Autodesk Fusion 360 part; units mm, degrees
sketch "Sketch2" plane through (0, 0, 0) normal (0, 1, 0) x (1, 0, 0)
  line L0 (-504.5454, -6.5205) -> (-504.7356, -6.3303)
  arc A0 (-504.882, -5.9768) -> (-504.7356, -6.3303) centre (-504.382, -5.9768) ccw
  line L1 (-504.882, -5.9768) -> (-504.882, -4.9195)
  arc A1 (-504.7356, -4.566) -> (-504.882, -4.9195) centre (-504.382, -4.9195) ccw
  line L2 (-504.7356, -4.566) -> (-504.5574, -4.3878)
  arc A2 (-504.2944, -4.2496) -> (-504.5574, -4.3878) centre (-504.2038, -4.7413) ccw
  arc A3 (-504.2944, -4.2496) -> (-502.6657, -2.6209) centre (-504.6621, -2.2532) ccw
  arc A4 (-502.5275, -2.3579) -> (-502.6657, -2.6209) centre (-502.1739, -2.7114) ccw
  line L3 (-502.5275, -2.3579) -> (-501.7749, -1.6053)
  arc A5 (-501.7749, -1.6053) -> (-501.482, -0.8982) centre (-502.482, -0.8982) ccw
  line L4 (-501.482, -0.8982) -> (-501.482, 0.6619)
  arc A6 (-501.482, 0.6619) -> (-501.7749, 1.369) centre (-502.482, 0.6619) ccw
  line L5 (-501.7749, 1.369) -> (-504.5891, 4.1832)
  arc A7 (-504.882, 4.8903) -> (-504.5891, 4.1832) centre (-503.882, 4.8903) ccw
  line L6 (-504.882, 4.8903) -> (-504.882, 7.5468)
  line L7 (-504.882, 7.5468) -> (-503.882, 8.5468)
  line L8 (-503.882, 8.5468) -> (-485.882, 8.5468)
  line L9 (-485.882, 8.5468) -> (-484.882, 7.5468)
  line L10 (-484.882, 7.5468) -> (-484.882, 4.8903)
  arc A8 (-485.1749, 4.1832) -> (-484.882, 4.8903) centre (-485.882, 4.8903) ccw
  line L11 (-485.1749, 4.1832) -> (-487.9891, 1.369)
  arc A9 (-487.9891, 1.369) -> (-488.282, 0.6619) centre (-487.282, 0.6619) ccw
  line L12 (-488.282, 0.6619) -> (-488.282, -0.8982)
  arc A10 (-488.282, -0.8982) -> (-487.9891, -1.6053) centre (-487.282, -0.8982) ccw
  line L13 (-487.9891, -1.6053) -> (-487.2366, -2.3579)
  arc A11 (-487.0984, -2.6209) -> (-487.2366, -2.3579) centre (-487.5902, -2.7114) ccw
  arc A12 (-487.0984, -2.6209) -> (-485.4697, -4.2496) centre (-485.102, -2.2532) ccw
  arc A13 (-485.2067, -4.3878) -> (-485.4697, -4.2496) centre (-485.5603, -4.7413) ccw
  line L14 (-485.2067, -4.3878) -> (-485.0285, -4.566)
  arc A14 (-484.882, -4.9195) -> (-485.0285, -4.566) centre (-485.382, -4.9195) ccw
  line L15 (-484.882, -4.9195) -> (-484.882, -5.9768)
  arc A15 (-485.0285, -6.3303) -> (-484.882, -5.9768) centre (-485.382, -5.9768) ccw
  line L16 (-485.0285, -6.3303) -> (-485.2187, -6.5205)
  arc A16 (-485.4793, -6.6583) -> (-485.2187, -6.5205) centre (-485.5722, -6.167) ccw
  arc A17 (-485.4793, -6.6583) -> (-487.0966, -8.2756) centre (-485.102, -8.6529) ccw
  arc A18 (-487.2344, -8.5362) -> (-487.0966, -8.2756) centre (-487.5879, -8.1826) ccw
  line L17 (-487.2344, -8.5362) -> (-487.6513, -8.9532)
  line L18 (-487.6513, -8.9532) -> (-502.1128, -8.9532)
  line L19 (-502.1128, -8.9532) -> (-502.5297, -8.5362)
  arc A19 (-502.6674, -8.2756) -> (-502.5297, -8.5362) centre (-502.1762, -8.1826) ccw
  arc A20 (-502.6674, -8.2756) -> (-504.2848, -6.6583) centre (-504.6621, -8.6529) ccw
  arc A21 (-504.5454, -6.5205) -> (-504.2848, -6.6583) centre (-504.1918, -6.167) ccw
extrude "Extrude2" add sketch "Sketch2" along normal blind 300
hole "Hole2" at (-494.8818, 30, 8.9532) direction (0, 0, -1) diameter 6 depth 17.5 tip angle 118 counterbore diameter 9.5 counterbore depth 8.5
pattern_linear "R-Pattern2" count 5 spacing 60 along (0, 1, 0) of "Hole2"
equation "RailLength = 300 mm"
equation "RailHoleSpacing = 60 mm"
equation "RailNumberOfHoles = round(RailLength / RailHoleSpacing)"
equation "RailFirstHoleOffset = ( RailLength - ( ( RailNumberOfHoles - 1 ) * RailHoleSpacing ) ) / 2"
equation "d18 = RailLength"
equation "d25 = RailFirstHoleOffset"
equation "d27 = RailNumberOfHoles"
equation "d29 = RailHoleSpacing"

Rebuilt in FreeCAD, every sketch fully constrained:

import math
import FreeCAD as App
import Part
import Sketcher
from FreeCAD import Vector
Q = App.Units.Quantity

doc = App.newDocument("Part")
params = doc.addObject("Spreadsheet::Sheet", "Params")
for row, (alias, value) in enumerate([
    ("sketch1_radius", "1 mm"),
    ("sketch1_radius2", "1 mm"),
    ("sketch1_radius3", "1 mm"),
    ("sketch1_radius4", "1 mm"),
    ("sketch1_radius5", "1 mm"),
    ("pad1_length", "300 mm"),
    ("sketch2_diameter", "6 mm"),
    ("hole_diameter", "6 mm"),
    ("hole_depth", "17.5 mm"),
    ("hole_cbore_diameter", "9.5 mm"),
    ("hole_cbore_depth", "8.5 mm"),
    ("linearpattern_pitch", "60 mm"),
], start=1):
    params.set(f"A{row}", alias)
    params.set(f"B{row}", "=" + value)
    params.setAlias(f"B{row}", alias)

body = doc.addObject("PartDesign::Body", "Body")

sketch1 = body.newObject("Sketcher::SketchObject", "Sketch")
sketch1.AttachmentSupport = (doc.getObject("XZ_Plane"), [""])
sketch1.MapMode = "FlatFace"
sketch1.addGeometry([
    Part.LineSegment(Vector(-504.7356, 6.3303, 0), Vector(-504.5454, 6.5205, 0)),
    Part.ArcOfCircle(Part.Circle(Vector(-504.1918, 6.167, 0), Vector(0, 0, 1), 0.499995), math.radians(100.718905), math.radians(135.008103)),
    Part.ArcOfCircle(Part.Circle(Vector(-504.6621, 8.6529, 0), Vector(0, 0, 1), 2.03007), math.radians(-79.288451), math.radians(-10.711024)),
    Part.ArcOfCircle(Part.Circle(Vector(-502.1762, 8.1826, 0), Vector(0, 0, 1), 0.499926), math.radians(134.991897), math.radians(169.278964)),
    Part.LineSegment(Vector(-502.5297, 8.5362, 0), Vector(-502.1128, 8.9532, 0)),
    Part.LineSegment(Vector(-502.1128, 8.9532, 0), Vector(-487.6513, 8.9532, 0)),
    Part.LineSegment(Vector(-487.6513, 8.9532, 0), Vector(-487.2344, 8.5362, 0)),
    Part.ArcOfCircle(Part.Circle(Vector(-487.5879, 8.1826, 0), Vector(0, 0, 1), 0.499995), math.radians(10.718905), math.radians(45.008103)),
    Part.ArcOfCircle(Part.Circle(Vector(-485.102, 8.6529, 0), Vector(0, 0, 1), 2.029972), math.radians(-169.288451), math.radians(-100.711549)),
    Part.ArcOfCircle(Part.Circle(Vector(-485.5722, 6.167, 0), Vector(0, 0, 1), 0.500006), math.radians(45), math.radians(79.292354)),
    Part.LineSegment(Vector(-485.2187, 6.5205, 0), Vector(-485.0285, 6.3303, 0)),
    Part.ArcOfCircle(Part.Circle(Vector(-485.382, 5.9768, 0), Vector(0, 0, 1), 0.499924), math.radians(0), math.radians(45)),
    Part.LineSegment(Vector(-484.882, 5.9768, 0), Vector(-484.882, 4.9195, 0)),
    Part.ArcOfCircle(Part.Circle(Vector(-485.382, 4.9195, 0), Vector(0, 0, 1), 0.5), math.radians(-45), math.radians(0)),
    Part.LineSegment(Vector(-485.0285, 4.566, 0), Vector(-485.2067, 4.3878, 0)),
    Part.ArcOfCircle(Part.Circle(Vector(-485.5603, 4.7413, 0), Vector(0, 0, 1), 0.499995), math.radians(-79.559855), math.radians(-44.991897)),
    Part.ArcOfCircle(Part.Circle(Vector(-485.102, 2.2532, 0), Vector(0, 0, 1), 2.029979), math.radians(100.435868), math.radians(169.564132)),
    Part.ArcOfCircle(Part.Circle(Vector(-487.5902, 2.7114, 0), Vector(0, 0, 1), 0.500057), math.radians(-44.991897), math.radians(-10.4268)),
    Part.LineSegment(Vector(-487.2366, 2.3579, 0), Vector(-487.9891, 1.6053, 0)),
    Part.ArcOfCircle(Part.Circle(Vector(-487.282, 0.8982, 0), Vector(0, 0, 1), 1), math.radians(135), math.radians(180)),
    Part.LineSegment(Vector(-488.282, 0.8982, 0), Vector(-488.282, -0.6619, 0)),
    Part.ArcOfCircle(Part.Circle(Vector(-487.282, -0.6619, 0), Vector(0, 0, 1), 0.99999), math.radians(180), math.radians(225)),
    Part.LineSegment(Vector(-487.9891, -1.369, 0), Vector(-485.1749, -4.1832, 0)),
    Part.ArcOfCircle(Part.Circle(Vector(-485.882, -4.8903, 0), Vector(0, 0, 1), 0.99999), math.radians(0), math.radians(45)),
    Part.LineSegment(Vector(-484.882, -4.8903, 0), Vector(-484.882, -7.5468, 0)),
    Part.LineSegment(Vector(-484.882, -7.5468, 0), Vector(-485.882, -8.5468, 0)),
    Part.LineSegment(Vector(-485.882, -8.5468, 0), Vector(-503.882, -8.5468, 0)),
    Part.LineSegment(Vector(-503.882, -8.5468, 0), Vector(-504.882, -7.5468, 0)),
    Part.LineSegment(Vector(-504.882, -7.5468, 0), Vector(-504.882, -4.8903, 0)),
    Part.ArcOfCircle(Part.Circle(Vector(-503.882, -4.8903, 0), Vector(0, 0, 1), 1), math.radians(135), math.radians(180)),
    Part.LineSegment(Vector(-504.5891, -4.1832, 0), Vector(-501.7749, -1.369, 0)),
    Part.ArcOfCircle(Part.Circle(Vector(-502.482, -0.6619, 0), Vector(0, 0, 1), 1), math.radians(-45), math.radians(0)),
    Part.LineSegment(Vector(-501.482, -0.6619, 0), Vector(-501.482, 0.8982, 0)),
    Part.ArcOfCircle(Part.Circle(Vector(-502.482, 0.8982, 0), Vector(0, 0, 1), 0.99999), math.radians(0), math.radians(45)),
    Part.LineSegment(Vector(-501.7749, 1.6053, 0), Vector(-502.5275, 2.3579, 0)),
    Part.ArcOfCircle(Part.Circle(Vector(-502.1739, 2.7114, 0), Vector(0, 0, 1), 0.499995), math.radians(-169.5732), math.radians(-135.008103)),
    Part.ArcOfCircle(Part.Circle(Vector(-504.6621, 2.2532, 0), Vector(0, 0, 1), 2.029979), math.radians(10.435868), math.radians(79.564132)),
    Part.ArcOfCircle(Part.Circle(Vector(-504.2038, 4.7413, 0), Vector(0, 0, 1), 0.499977), math.radians(-135.008103), math.radians(-100.440145)),
    Part.LineSegment(Vector(-504.5574, 4.3878, 0), Vector(-504.7356, 4.566, 0)),
    Part.ArcOfCircle(Part.Circle(Vector(-504.382, 4.9195, 0), Vector(0, 0, 1), 0.499995), math.radians(180), math.radians(224.991897)),
    Part.LineSegment(Vector(-504.882, 4.9195, 0), Vector(-504.882, 5.9768, 0)),
    Part.ArcOfCircle(Part.Circle(Vector(-504.382, 5.9768, 0), Vector(0, 0, 1), 0.5), math.radians(135.008103), math.radians(180)),
], False)
sketch1.addConstraint([
    Sketcher.Constraint("Coincident", 0, 2, 1, 2),
    Sketcher.Constraint("Coincident", 1, 1, 2, 1),
    Sketcher.Constraint("Coincident", 2, 2, 3, 2),
    Sketcher.Constraint("Coincident", 3, 1, 4, 1),
    Sketcher.Constraint("Coincident", 4, 2, 5, 1),
    Sketcher.Constraint("Coincident", 5, 2, 6, 1),
    Sketcher.Constraint("Coincident", 6, 2, 7, 2),
    Sketcher.Constraint("Coincident", 7, 1, 8, 1),
    Sketcher.Constraint("Coincident", 8, 2, 9, 2),
    Sketcher.Constraint("Coincident", 9, 1, 10, 1),
    Sketcher.Constraint("Coincident", 10, 2, 11, 2),
    Sketcher.Constraint("Coincident", 11, 1, 12, 1),
    Sketcher.Constraint("Coincident", 12, 2, 13, 2),
    Sketcher.Constraint("Coincident", 13, 1, 14, 1),
    Sketcher.Constraint("Coincident", 14, 2, 15, 2),
    Sketcher.Constraint("Coincident", 15, 1, 16, 1),
    Sketcher.Constraint("Coincident", 16, 2, 17, 2),
    Sketcher.Constraint("Coincident", 17, 1, 18, 1),
    Sketcher.Constraint("Coincident", 18, 2, 19, 1),
    Sketcher.Constraint("Coincident", 19, 2, 20, 1),
    Sketcher.Constraint("Coincident", 20, 2, 21, 1),
    Sketcher.Constraint("Coincident", 21, 2, 22, 1),
    Sketcher.Constraint("Coincident", 22, 2, 23, 2),
    Sketcher.Constraint("Coincident", 23, 1, 24, 1),
    Sketcher.Constraint("Coincident", 24, 2, 25, 1),
    Sketcher.Constraint("Coincident", 25, 2, 26, 1),
    Sketcher.Constraint("Coincident", 26, 2, 27, 1),
    Sketcher.Constraint("Coincident", 27, 2, 28, 1),
    Sketcher.Constraint("Coincident", 28, 2, 29, 2),
    Sketcher.Constraint("Coincident", 29, 1, 30, 1),
    Sketcher.Constraint("Coincident", 30, 2, 31, 1),
    Sketcher.Constraint("Coincident", 31, 2, 32, 1),
    Sketcher.Constraint("Coincident", 32, 2, 33, 1),
    Sketcher.Constraint("Coincident", 33, 2, 34, 1),
    Sketcher.Constraint("Coincident", 34, 2, 35, 2),
    Sketcher.Constraint("Coincident", 35, 1, 36, 1),
    Sketcher.Constraint("Coincident", 36, 2, 37, 2),
    Sketcher.Constraint("Coincident", 37, 1, 38, 1),
    Sketcher.Constraint("Coincident", 38, 2, 39, 2),
    Sketcher.Constraint("Coincident", 39, 1, 40, 1),
    Sketcher.Constraint("Coincident", 40, 2, 41, 2),
    Sketcher.Constraint("Coincident", 41, 1, 0, 1),
    Sketcher.Constraint("Horizontal", 5),
    Sketcher.Constraint("Vertical", 12),
    Sketcher.Constraint("Vertical", 20),
    Sketcher.Constraint("Vertical", 24),
    Sketcher.Constraint("Horizontal", 26),
    Sketcher.Constraint("Vertical", 28),
    Sketcher.Constraint("Vertical", 32),
    Sketcher.Constraint("Vertical", 40),
    Sketcher.Constraint("Radius", 19, Q("1 mm")),
    Sketcher.Constraint("Radius", 21, Q("1 mm")),
    Sketcher.Constraint("Radius", 23, Q("1 mm")),
    Sketcher.Constraint("Radius", 29, Q("1 mm")),
    Sketcher.Constraint("Radius", 31, Q("1 mm")),
    Sketcher.Constraint("Radius", 33, Q("1 mm")),
    Sketcher.Constraint("Radius", 1, Q("0.5 mm")),
    Sketcher.Constraint("Radius", 3, Q("0.5 mm")),
    Sketcher.Constraint("Radius", 7, Q("0.5 mm")),
    Sketcher.Constraint("Radius", 9, Q("0.5 mm")),
    Sketcher.Constraint("Radius", 11, Q("0.5 mm")),
    Sketcher.Constraint("Radius", 13, Q("0.5 mm")),
    Sketcher.Constraint("Radius", 15, Q("0.5 mm")),
    Sketcher.Constraint("Radius", 17, Q("0.5 mm")),
    Sketcher.Constraint("Radius", 35, Q("0.5 mm")),
    Sketcher.Constraint("Radius", 37, Q("0.5 mm")),
    Sketcher.Constraint("Radius", 39, Q("0.5 mm")),
    Sketcher.Constraint("Radius", 41, Q("0.5 mm")),
    Sketcher.Constraint("DistanceX", 26, 2, 26, 1, Q("18 mm")),
    Sketcher.Constraint("Radius", 2, Q("2.03 mm")),
    Sketcher.Constraint("Radius", 8, Q("2.03 mm")),
    Sketcher.Constraint("Radius", 16, Q("2.03 mm")),
    Sketcher.Constraint("Radius", 36, Q("2.03 mm")),
    Sketcher.Constraint("DistanceY", 20, 2, 20, 1, Q("1.56 mm")),
    Sketcher.Constraint("DistanceY", 32, 1, 32, 2, Q("1.56 mm")),
    Sketcher.Constraint("Distance", 0, Q("0.269 mm")),
    Sketcher.Constraint("Distance", 10, Q("0.269 mm")),
    Sketcher.Constraint("Distance", 14, Q("0.252 mm")),
    Sketcher.Constraint("Distance", 38, Q("0.252 mm")),
    Sketcher.Constraint("DistanceX", 5, 1, 5, 2, Q("14.4615 mm")),
    Sketcher.Constraint("DistanceY", 12, 2, 12, 1, Q("1.0573 mm")),
    Sketcher.Constraint("DistanceY", 24, 2, 24, 1, Q("2.6565 mm")),
    Sketcher.Constraint("DistanceY", 28, 1, 28, 2, Q("2.6565 mm")),
    Sketcher.Constraint("DistanceY", 40, 1, 40, 2, Q("1.0573 mm")),
    Sketcher.Constraint("DistanceY", -1, 1, 1, 3, Q("6.167 mm")),
    Sketcher.Constraint("DistanceX", 2, 3, -1, 1, Q("504.662 mm")),
    Sketcher.Constraint("DistanceY", -1, 1, 2, 3, Q("8.653 mm")),
    Sketcher.Constraint("DistanceX", 7, 3, -1, 1, Q("487.588 mm")),
    Sketcher.Constraint("DistanceX", 8, 3, -1, 1, Q("485.102 mm")),
    Sketcher.Constraint("DistanceY", -1, 1, 8, 3, Q("8.653 mm")),
    Sketcher.Constraint("DistanceY", -1, 1, 9, 3, Q("6.167 mm")),
    Sketcher.Constraint("DistanceX", 11, 3, -1, 1, Q("485.382 mm")),
    Sketcher.Constraint("DistanceX", 16, 3, -1, 1, Q("485.102 mm")),
    Sketcher.Constraint("DistanceX", 19, 3, -1, 1, Q("487.282 mm")),
    Sketcher.Constraint("DistanceY", 21, 3, -1, 1, Q("0.662 mm")),
    Sketcher.Constraint("DistanceX", 23, 3, -1, 1, Q("485.882 mm")),
    Sketcher.Constraint("DistanceX", 29, 3, -1, 1, Q("503.882 mm")),
    Sketcher.Constraint("DistanceX", 31, 3, -1, 1, Q("502.482 mm")),
    Sketcher.Constraint("DistanceY", 31, 3, -1, 1, Q("0.662 mm")),
    Sketcher.Constraint("DistanceX", 35, 3, -1, 1, Q("502.174 mm")),
    Sketcher.Constraint("DistanceX", 36, 3, -1, 1, Q("504.662 mm")),
    Sketcher.Constraint("DistanceX", 39, 3, -1, 1, Q("504.382 mm")),
    Sketcher.Constraint("DistanceY", -1, 1, 13, 1, Q("4.566 mm")),
    Sketcher.Constraint("DistanceY", -1, 1, 16, 2, Q("2.621 mm")),
    Sketcher.Constraint("DistanceX", 18, 2, -1, 1, Q("487.989 mm")),
    Sketcher.Constraint("DistanceY", 20, 2, -1, 1, Q("0.662 mm")),
    Sketcher.Constraint("DistanceX", 21, 2, -1, 1, Q("487.989 mm")),
    Sketcher.Constraint("DistanceX", 22, 2, -1, 1, Q("485.175 mm")),
    Sketcher.Constraint("DistanceX", 25, 2, -1, 1, Q("485.882 mm")),
    Sketcher.Constraint("DistanceX", 29, 1, -1, 1, Q("504.589 mm")),
    Sketcher.Constraint("DistanceX", 30, 2, -1, 1, Q("501.775 mm")),
    Sketcher.Constraint("DistanceY", 31, 2, -1, 1, Q("0.662 mm")),
    Sketcher.Constraint("DistanceX", 33, 2, -1, 1, Q("501.775 mm")),
    Sketcher.Constraint("DistanceY", -1, 1, 34, 2, Q("2.358 mm")),
    Sketcher.Constraint("DistanceY", -1, 1, 35, 1, Q("2.621 mm")),
    Sketcher.Constraint("DistanceY", -1, 1, 38, 2, Q("4.566 mm")),
    Sketcher.Constraint("Distance", 4, Q("0.5897 mm")),
    Sketcher.Constraint("Distance", 6, Q("0.5897 mm")),
    Sketcher.Constraint("Distance", 18, Q("1.0643 mm")),
    Sketcher.Constraint("Distance", 22, Q("3.9799 mm")),
    Sketcher.Constraint("Distance", 25, Q("1.4142 mm")),
    Sketcher.Constraint("Distance", 27, Q("1.4142 mm")),
    Sketcher.Constraint("Distance", 30, Q("3.9799 mm")),
    Sketcher.Constraint("Distance", 34, Q("1.0643 mm")),
    Sketcher.Constraint("DistanceX", 3, 3, -1, 1, Q("502.1762 mm")),
    Sketcher.Constraint("DistanceY", -1, 1, 11, 3, Q("5.9768 mm")),
    Sketcher.Constraint("DistanceY", -1, 1, 13, 3, Q("4.9195 mm")),
    Sketcher.Constraint("DistanceX", 15, 3, -1, 1, Q("485.5603 mm")),
    Sketcher.Constraint("DistanceY", -1, 1, 15, 3, Q("4.7413 mm")),
    Sketcher.Constraint("DistanceX", 17, 3, -1, 1, Q("487.5902 mm")),
    Sketcher.Constraint("DistanceY", -1, 1, 19, 3, Q("0.8982 mm")),
    Sketcher.Constraint("DistanceY", -1, 1, 33, 3, Q("0.8982 mm")),
    Sketcher.Constraint("DistanceX", 37, 3, -1, 1, Q("504.2038 mm")),
    Sketcher.Constraint("DistanceY", -1, 1, 39, 3, Q("4.9195 mm")),
    Sketcher.Constraint("DistanceY", -1, 1, 41, 3, Q("5.9768 mm")),
    Sketcher.Constraint("DistanceX", 0, 2, -1, 1, Q("504.5454 mm")),
    Sketcher.Constraint("DistanceX", 1, 1, -1, 1, Q("504.2848 mm")),
    Sketcher.Constraint("DistanceX", 2, 2, -1, 1, Q("502.6674 mm")),
    Sketcher.Constraint("DistanceX", 3, 1, -1, 1, Q("502.5297 mm")),
    Sketcher.Constraint("DistanceX", 4, 2, -1, 1, Q("502.1128 mm")),
    Sketcher.Constraint("DistanceX", 7, 1, -1, 1, Q("487.0966 mm")),
    Sketcher.Constraint("DistanceX", 8, 2, -1, 1, Q("485.4793 mm")),
    Sketcher.Constraint("DistanceX", 9, 1, -1, 1, Q("485.2186 mm")),
    Sketcher.Constraint("DistanceY", -1, 1, 11, 1, Q("5.9768 mm")),
    Sketcher.Constraint("DistanceX", 15, 1, -1, 1, Q("485.4697 mm")),
    Sketcher.Constraint("DistanceY", 23, 1, -1, 1, Q("4.8903 mm")),
    Sketcher.Constraint("DistanceX", 36, 2, -1, 1, Q("504.2944 mm")),
    Sketcher.Constraint("DistanceY", -1, 1, 39, 1, Q("4.9195 mm")),
])
sketch1.setExpression("Constraints[50]", "Params.sketch1_radius")
sketch1.setExpression("Constraints[51]", "Params.sketch1_radius2")
sketch1.setExpression("Constraints[52]", "Params.sketch1_radius3")
sketch1.setExpression("Constraints[53]", "Params.sketch1_radius4")
sketch1.setExpression("Constraints[54]", "Params.sketch1_radius5")
pad1 = body.newObject("PartDesign::Pad", "Pad")
pad1.Profile = sketch1
pad1.setExpression("Length", "Params.pad1_length")
pad1.Reversed = True

sketch2 = body.newObject("Sketcher::SketchObject", "Sketch001")
sketch2.AttachmentSupport = (doc.getObject("XY_Plane"), [""])
sketch2.MapMode = "FlatFace"
sketch2.AttachmentOffset = App.Placement(Vector(0, 0, 8.9532), App.Rotation())
sketch2.addGeometry(Part.Circle(Vector(-494.9, 30, 0), Vector(0, 0, 1), 3), False)
sketch2.addConstraint([
    Sketcher.Constraint("Diameter", 0, Q("6 mm")),
    Sketcher.Constraint("DistanceY", -1, 1, 0, 3, Q("30 mm")),
    Sketcher.Constraint("DistanceX", 0, 3, -1, 1, Q("494.8818 mm")),
])
sketch2.setExpression("Constraints[0]", "Params.sketch2_diameter")
doc.recompute()
hole = body.newObject("PartDesign::Hole", "Hole")
hole.Profile = sketch2
hole.ThreadType = "None"
hole.setExpression("Diameter", "Params.hole_diameter")
hole.DepthType = "Dimension"
hole.setExpression("Depth", "Params.hole_depth")
hole.DrillPoint = "Angled"
hole.DrillPointAngle = 118
hole.HoleCutType = "Counterbore"
hole.setExpression("HoleCutDiameter", "Params.hole_cbore_diameter")
hole.setExpression("HoleCutDepth", "Params.hole_cbore_depth")
doc.recompute()

linearpattern = body.newObject("PartDesign::LinearPattern", "LinearPattern")
linearpattern.Originals = [hole]
linearpattern.Direction = (doc.getObject("Y_Axis"), [""])
linearpattern.Mode = "offset"
linearpattern.setExpression("Offset", "Params.linearpattern_pitch")
linearpattern.Occurrences = 5
body.Tip = linearpattern

doc.recompute()
